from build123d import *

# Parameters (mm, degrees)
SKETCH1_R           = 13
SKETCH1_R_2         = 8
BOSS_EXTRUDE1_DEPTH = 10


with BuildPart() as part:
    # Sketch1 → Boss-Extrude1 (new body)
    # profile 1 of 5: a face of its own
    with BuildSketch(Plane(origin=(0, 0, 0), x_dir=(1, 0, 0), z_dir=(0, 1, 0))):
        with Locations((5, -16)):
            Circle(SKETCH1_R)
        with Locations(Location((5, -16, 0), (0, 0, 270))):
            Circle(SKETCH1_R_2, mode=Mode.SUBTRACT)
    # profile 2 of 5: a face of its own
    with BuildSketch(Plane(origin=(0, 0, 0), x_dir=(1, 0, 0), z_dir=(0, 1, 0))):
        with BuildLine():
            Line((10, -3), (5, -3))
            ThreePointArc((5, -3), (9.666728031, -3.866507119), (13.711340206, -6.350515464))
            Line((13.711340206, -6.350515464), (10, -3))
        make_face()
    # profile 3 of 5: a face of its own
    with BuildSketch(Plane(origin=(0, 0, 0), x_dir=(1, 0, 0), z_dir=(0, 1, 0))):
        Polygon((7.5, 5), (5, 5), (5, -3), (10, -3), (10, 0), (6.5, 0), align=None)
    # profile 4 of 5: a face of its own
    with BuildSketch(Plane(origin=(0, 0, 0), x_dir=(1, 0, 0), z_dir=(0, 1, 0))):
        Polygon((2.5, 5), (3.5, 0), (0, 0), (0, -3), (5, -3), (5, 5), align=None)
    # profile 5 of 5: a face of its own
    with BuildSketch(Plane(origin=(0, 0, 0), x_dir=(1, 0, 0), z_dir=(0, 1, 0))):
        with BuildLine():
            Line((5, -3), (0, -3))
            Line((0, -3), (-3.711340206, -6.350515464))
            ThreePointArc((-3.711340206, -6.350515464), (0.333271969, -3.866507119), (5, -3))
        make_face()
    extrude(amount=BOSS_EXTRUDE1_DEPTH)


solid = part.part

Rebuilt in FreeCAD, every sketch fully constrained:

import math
import FreeCAD as App
import Part
import Sketcher

V = App.Vector
Q = App.Units.Quantity

doc = App.newDocument("Part")
params = doc.addObject("Spreadsheet::Sheet", "Params")
for row, (alias, value) in enumerate([
    ("sketch1_diameter", "16 mm"),
    ("sketch1_radius", "13 mm"),
    ("sketch1_width", "5 mm"),
    ("sketch1_height", "3 mm"),
    ("sketch1_length", "5 mm"),
    ("pad1_length", "10 mm"),
], start=1):
    params.set(f"A{row}", alias)
    params.set(f"B{row}", "=" + value)
    params.setAlias(f"B{row}", alias)

body = doc.addObject("PartDesign::Body", "Body")

# Sketch on XZ plane
sketch1 = body.newObject("Sketcher::SketchObject", "Sketch")
sketch1.AttachmentSupport = (doc.getObject("XZ_Plane"), [""])
sketch1.MapMode = "FlatFace"
sketch1.addGeometry([
    Part.LineSegment(V(13.7, 6.4, 0), V(10, 3, 0)),  # 0
    Part.LineSegment(V(10, 3, 0), V(10, 0, 0)),  # 1
    Part.LineSegment(V(10, 0, 0), V(6.5, 0, 0)),  # 2
    Part.LineSegment(V(6.5, 0, 0), V(7.5, -5, 0)),  # 3
    Part.LineSegment(V(7.5, -5, 0), V(2.5, -5, 0)),  # 4
    Part.LineSegment(V(2.5, -5, 0), V(3.5, 0, 0)),  # 5
    Part.LineSegment(V(3.5, 0, 0), V(0, 0, 0)),  # 6
    Part.LineSegment(V(0, 0, 0), V(0, 3, 0)),  # 7
    Part.LineSegment(V(0, 3, 0), V(-3.7, 6.4, 0)),  # 8
    Part.ArcOfCircle(Part.Circle(V(5, 16, 0), V(0, 0, 1), 13), math.radians(-48), math.radians(228)),  # 9
    Part.Circle(V(5, 16, 0), V(0, 0, 1), 8),  # 10
], False)
sketch1.addConstraint([
    Sketcher.Constraint("Coincident", 0, 2, 1, 1),
    Sketcher.Constraint("Coincident", 1, 2, 2, 1),
    Sketcher.Constraint("Coincident", 2, 2, 3, 1),
    Sketcher.Constraint("Coincident", 3, 2, 4, 1),
    Sketcher.Constraint("Coincident", 4, 2, 5, 1),
    Sketcher.Constraint("Coincident", 5, 2, 6, 1),
    Sketcher.Constraint("Coincident", 6, 2, 7, 1),
    Sketcher.Constraint("Coincident", 7, 2, 8, 1),
    Sketcher.Constraint("Tangent", 8, 2, 9, 2),
    Sketcher.Constraint("Tangent", 9, 1, 0, 1),
    Sketcher.Constraint("Vertical", 1),
    Sketcher.Constraint("Horizontal", 2),
    Sketcher.Constraint("Horizontal", 4),
    Sketcher.Constraint("Horizontal", 6),
    Sketcher.Constraint("Vertical", 7),
    Sketcher.Constraint("Coincident", 6, 2, -1, 1),
    Sketcher.Constraint("Coincident", 10, 3, 9, 3),
    Sketcher.Constraint("PointOnObject", 1, 2, -1),
    Sketcher.Constraint("Horizontal", 0, 2, 7, 2),
    Sketcher.Constraint("Horizontal", 8, 2, 9, 1),
    Sketcher.Constraint("Equal", 2, 6),
    Sketcher.Constraint("Equal", 3, 5),
    Sketcher.Constraint("Diameter", 10, Q("16 mm")),
    Sketcher.Constraint("Radius", 9, Q("13 mm")),
    Sketcher.Constraint("DistanceX", 4, 2, 4, 1, Q("5 mm")),
    Sketcher.Constraint("DistanceY", 1, 2, 1, 1, Q("3 mm")),
    Sketcher.Constraint("Distance", 0, Q("5 mm")),
    Sketcher.Constraint("DistanceX", 2, 2, 2, 1, Q("3.5 mm")),
    Sketcher.Constraint("DistanceX", -1, 1, 9, 3, Q("5 mm")),
    Sketcher.Constraint("DistanceY", 3, 2, -1, 1, Q("5 mm")),
])
sketch1.setExpression("Constraints[22]", "Params.sketch1_diameter")
sketch1.setExpression("Constraints[23]", "Params.sketch1_radius")
sketch1.setExpression("Constraints[24]", "Params.sketch1_width")
sketch1.setExpression("Constraints[25]", "Params.sketch1_height")
sketch1.setExpression("Constraints[26]", "Params.sketch1_length")
pad1 = body.newObject("PartDesign::Pad", "Pad")
pad1.Profile = sketch1
pad1.setExpression("Length", "Params.pad1_length")
pad1.Reversed = True

doc.recompute()
